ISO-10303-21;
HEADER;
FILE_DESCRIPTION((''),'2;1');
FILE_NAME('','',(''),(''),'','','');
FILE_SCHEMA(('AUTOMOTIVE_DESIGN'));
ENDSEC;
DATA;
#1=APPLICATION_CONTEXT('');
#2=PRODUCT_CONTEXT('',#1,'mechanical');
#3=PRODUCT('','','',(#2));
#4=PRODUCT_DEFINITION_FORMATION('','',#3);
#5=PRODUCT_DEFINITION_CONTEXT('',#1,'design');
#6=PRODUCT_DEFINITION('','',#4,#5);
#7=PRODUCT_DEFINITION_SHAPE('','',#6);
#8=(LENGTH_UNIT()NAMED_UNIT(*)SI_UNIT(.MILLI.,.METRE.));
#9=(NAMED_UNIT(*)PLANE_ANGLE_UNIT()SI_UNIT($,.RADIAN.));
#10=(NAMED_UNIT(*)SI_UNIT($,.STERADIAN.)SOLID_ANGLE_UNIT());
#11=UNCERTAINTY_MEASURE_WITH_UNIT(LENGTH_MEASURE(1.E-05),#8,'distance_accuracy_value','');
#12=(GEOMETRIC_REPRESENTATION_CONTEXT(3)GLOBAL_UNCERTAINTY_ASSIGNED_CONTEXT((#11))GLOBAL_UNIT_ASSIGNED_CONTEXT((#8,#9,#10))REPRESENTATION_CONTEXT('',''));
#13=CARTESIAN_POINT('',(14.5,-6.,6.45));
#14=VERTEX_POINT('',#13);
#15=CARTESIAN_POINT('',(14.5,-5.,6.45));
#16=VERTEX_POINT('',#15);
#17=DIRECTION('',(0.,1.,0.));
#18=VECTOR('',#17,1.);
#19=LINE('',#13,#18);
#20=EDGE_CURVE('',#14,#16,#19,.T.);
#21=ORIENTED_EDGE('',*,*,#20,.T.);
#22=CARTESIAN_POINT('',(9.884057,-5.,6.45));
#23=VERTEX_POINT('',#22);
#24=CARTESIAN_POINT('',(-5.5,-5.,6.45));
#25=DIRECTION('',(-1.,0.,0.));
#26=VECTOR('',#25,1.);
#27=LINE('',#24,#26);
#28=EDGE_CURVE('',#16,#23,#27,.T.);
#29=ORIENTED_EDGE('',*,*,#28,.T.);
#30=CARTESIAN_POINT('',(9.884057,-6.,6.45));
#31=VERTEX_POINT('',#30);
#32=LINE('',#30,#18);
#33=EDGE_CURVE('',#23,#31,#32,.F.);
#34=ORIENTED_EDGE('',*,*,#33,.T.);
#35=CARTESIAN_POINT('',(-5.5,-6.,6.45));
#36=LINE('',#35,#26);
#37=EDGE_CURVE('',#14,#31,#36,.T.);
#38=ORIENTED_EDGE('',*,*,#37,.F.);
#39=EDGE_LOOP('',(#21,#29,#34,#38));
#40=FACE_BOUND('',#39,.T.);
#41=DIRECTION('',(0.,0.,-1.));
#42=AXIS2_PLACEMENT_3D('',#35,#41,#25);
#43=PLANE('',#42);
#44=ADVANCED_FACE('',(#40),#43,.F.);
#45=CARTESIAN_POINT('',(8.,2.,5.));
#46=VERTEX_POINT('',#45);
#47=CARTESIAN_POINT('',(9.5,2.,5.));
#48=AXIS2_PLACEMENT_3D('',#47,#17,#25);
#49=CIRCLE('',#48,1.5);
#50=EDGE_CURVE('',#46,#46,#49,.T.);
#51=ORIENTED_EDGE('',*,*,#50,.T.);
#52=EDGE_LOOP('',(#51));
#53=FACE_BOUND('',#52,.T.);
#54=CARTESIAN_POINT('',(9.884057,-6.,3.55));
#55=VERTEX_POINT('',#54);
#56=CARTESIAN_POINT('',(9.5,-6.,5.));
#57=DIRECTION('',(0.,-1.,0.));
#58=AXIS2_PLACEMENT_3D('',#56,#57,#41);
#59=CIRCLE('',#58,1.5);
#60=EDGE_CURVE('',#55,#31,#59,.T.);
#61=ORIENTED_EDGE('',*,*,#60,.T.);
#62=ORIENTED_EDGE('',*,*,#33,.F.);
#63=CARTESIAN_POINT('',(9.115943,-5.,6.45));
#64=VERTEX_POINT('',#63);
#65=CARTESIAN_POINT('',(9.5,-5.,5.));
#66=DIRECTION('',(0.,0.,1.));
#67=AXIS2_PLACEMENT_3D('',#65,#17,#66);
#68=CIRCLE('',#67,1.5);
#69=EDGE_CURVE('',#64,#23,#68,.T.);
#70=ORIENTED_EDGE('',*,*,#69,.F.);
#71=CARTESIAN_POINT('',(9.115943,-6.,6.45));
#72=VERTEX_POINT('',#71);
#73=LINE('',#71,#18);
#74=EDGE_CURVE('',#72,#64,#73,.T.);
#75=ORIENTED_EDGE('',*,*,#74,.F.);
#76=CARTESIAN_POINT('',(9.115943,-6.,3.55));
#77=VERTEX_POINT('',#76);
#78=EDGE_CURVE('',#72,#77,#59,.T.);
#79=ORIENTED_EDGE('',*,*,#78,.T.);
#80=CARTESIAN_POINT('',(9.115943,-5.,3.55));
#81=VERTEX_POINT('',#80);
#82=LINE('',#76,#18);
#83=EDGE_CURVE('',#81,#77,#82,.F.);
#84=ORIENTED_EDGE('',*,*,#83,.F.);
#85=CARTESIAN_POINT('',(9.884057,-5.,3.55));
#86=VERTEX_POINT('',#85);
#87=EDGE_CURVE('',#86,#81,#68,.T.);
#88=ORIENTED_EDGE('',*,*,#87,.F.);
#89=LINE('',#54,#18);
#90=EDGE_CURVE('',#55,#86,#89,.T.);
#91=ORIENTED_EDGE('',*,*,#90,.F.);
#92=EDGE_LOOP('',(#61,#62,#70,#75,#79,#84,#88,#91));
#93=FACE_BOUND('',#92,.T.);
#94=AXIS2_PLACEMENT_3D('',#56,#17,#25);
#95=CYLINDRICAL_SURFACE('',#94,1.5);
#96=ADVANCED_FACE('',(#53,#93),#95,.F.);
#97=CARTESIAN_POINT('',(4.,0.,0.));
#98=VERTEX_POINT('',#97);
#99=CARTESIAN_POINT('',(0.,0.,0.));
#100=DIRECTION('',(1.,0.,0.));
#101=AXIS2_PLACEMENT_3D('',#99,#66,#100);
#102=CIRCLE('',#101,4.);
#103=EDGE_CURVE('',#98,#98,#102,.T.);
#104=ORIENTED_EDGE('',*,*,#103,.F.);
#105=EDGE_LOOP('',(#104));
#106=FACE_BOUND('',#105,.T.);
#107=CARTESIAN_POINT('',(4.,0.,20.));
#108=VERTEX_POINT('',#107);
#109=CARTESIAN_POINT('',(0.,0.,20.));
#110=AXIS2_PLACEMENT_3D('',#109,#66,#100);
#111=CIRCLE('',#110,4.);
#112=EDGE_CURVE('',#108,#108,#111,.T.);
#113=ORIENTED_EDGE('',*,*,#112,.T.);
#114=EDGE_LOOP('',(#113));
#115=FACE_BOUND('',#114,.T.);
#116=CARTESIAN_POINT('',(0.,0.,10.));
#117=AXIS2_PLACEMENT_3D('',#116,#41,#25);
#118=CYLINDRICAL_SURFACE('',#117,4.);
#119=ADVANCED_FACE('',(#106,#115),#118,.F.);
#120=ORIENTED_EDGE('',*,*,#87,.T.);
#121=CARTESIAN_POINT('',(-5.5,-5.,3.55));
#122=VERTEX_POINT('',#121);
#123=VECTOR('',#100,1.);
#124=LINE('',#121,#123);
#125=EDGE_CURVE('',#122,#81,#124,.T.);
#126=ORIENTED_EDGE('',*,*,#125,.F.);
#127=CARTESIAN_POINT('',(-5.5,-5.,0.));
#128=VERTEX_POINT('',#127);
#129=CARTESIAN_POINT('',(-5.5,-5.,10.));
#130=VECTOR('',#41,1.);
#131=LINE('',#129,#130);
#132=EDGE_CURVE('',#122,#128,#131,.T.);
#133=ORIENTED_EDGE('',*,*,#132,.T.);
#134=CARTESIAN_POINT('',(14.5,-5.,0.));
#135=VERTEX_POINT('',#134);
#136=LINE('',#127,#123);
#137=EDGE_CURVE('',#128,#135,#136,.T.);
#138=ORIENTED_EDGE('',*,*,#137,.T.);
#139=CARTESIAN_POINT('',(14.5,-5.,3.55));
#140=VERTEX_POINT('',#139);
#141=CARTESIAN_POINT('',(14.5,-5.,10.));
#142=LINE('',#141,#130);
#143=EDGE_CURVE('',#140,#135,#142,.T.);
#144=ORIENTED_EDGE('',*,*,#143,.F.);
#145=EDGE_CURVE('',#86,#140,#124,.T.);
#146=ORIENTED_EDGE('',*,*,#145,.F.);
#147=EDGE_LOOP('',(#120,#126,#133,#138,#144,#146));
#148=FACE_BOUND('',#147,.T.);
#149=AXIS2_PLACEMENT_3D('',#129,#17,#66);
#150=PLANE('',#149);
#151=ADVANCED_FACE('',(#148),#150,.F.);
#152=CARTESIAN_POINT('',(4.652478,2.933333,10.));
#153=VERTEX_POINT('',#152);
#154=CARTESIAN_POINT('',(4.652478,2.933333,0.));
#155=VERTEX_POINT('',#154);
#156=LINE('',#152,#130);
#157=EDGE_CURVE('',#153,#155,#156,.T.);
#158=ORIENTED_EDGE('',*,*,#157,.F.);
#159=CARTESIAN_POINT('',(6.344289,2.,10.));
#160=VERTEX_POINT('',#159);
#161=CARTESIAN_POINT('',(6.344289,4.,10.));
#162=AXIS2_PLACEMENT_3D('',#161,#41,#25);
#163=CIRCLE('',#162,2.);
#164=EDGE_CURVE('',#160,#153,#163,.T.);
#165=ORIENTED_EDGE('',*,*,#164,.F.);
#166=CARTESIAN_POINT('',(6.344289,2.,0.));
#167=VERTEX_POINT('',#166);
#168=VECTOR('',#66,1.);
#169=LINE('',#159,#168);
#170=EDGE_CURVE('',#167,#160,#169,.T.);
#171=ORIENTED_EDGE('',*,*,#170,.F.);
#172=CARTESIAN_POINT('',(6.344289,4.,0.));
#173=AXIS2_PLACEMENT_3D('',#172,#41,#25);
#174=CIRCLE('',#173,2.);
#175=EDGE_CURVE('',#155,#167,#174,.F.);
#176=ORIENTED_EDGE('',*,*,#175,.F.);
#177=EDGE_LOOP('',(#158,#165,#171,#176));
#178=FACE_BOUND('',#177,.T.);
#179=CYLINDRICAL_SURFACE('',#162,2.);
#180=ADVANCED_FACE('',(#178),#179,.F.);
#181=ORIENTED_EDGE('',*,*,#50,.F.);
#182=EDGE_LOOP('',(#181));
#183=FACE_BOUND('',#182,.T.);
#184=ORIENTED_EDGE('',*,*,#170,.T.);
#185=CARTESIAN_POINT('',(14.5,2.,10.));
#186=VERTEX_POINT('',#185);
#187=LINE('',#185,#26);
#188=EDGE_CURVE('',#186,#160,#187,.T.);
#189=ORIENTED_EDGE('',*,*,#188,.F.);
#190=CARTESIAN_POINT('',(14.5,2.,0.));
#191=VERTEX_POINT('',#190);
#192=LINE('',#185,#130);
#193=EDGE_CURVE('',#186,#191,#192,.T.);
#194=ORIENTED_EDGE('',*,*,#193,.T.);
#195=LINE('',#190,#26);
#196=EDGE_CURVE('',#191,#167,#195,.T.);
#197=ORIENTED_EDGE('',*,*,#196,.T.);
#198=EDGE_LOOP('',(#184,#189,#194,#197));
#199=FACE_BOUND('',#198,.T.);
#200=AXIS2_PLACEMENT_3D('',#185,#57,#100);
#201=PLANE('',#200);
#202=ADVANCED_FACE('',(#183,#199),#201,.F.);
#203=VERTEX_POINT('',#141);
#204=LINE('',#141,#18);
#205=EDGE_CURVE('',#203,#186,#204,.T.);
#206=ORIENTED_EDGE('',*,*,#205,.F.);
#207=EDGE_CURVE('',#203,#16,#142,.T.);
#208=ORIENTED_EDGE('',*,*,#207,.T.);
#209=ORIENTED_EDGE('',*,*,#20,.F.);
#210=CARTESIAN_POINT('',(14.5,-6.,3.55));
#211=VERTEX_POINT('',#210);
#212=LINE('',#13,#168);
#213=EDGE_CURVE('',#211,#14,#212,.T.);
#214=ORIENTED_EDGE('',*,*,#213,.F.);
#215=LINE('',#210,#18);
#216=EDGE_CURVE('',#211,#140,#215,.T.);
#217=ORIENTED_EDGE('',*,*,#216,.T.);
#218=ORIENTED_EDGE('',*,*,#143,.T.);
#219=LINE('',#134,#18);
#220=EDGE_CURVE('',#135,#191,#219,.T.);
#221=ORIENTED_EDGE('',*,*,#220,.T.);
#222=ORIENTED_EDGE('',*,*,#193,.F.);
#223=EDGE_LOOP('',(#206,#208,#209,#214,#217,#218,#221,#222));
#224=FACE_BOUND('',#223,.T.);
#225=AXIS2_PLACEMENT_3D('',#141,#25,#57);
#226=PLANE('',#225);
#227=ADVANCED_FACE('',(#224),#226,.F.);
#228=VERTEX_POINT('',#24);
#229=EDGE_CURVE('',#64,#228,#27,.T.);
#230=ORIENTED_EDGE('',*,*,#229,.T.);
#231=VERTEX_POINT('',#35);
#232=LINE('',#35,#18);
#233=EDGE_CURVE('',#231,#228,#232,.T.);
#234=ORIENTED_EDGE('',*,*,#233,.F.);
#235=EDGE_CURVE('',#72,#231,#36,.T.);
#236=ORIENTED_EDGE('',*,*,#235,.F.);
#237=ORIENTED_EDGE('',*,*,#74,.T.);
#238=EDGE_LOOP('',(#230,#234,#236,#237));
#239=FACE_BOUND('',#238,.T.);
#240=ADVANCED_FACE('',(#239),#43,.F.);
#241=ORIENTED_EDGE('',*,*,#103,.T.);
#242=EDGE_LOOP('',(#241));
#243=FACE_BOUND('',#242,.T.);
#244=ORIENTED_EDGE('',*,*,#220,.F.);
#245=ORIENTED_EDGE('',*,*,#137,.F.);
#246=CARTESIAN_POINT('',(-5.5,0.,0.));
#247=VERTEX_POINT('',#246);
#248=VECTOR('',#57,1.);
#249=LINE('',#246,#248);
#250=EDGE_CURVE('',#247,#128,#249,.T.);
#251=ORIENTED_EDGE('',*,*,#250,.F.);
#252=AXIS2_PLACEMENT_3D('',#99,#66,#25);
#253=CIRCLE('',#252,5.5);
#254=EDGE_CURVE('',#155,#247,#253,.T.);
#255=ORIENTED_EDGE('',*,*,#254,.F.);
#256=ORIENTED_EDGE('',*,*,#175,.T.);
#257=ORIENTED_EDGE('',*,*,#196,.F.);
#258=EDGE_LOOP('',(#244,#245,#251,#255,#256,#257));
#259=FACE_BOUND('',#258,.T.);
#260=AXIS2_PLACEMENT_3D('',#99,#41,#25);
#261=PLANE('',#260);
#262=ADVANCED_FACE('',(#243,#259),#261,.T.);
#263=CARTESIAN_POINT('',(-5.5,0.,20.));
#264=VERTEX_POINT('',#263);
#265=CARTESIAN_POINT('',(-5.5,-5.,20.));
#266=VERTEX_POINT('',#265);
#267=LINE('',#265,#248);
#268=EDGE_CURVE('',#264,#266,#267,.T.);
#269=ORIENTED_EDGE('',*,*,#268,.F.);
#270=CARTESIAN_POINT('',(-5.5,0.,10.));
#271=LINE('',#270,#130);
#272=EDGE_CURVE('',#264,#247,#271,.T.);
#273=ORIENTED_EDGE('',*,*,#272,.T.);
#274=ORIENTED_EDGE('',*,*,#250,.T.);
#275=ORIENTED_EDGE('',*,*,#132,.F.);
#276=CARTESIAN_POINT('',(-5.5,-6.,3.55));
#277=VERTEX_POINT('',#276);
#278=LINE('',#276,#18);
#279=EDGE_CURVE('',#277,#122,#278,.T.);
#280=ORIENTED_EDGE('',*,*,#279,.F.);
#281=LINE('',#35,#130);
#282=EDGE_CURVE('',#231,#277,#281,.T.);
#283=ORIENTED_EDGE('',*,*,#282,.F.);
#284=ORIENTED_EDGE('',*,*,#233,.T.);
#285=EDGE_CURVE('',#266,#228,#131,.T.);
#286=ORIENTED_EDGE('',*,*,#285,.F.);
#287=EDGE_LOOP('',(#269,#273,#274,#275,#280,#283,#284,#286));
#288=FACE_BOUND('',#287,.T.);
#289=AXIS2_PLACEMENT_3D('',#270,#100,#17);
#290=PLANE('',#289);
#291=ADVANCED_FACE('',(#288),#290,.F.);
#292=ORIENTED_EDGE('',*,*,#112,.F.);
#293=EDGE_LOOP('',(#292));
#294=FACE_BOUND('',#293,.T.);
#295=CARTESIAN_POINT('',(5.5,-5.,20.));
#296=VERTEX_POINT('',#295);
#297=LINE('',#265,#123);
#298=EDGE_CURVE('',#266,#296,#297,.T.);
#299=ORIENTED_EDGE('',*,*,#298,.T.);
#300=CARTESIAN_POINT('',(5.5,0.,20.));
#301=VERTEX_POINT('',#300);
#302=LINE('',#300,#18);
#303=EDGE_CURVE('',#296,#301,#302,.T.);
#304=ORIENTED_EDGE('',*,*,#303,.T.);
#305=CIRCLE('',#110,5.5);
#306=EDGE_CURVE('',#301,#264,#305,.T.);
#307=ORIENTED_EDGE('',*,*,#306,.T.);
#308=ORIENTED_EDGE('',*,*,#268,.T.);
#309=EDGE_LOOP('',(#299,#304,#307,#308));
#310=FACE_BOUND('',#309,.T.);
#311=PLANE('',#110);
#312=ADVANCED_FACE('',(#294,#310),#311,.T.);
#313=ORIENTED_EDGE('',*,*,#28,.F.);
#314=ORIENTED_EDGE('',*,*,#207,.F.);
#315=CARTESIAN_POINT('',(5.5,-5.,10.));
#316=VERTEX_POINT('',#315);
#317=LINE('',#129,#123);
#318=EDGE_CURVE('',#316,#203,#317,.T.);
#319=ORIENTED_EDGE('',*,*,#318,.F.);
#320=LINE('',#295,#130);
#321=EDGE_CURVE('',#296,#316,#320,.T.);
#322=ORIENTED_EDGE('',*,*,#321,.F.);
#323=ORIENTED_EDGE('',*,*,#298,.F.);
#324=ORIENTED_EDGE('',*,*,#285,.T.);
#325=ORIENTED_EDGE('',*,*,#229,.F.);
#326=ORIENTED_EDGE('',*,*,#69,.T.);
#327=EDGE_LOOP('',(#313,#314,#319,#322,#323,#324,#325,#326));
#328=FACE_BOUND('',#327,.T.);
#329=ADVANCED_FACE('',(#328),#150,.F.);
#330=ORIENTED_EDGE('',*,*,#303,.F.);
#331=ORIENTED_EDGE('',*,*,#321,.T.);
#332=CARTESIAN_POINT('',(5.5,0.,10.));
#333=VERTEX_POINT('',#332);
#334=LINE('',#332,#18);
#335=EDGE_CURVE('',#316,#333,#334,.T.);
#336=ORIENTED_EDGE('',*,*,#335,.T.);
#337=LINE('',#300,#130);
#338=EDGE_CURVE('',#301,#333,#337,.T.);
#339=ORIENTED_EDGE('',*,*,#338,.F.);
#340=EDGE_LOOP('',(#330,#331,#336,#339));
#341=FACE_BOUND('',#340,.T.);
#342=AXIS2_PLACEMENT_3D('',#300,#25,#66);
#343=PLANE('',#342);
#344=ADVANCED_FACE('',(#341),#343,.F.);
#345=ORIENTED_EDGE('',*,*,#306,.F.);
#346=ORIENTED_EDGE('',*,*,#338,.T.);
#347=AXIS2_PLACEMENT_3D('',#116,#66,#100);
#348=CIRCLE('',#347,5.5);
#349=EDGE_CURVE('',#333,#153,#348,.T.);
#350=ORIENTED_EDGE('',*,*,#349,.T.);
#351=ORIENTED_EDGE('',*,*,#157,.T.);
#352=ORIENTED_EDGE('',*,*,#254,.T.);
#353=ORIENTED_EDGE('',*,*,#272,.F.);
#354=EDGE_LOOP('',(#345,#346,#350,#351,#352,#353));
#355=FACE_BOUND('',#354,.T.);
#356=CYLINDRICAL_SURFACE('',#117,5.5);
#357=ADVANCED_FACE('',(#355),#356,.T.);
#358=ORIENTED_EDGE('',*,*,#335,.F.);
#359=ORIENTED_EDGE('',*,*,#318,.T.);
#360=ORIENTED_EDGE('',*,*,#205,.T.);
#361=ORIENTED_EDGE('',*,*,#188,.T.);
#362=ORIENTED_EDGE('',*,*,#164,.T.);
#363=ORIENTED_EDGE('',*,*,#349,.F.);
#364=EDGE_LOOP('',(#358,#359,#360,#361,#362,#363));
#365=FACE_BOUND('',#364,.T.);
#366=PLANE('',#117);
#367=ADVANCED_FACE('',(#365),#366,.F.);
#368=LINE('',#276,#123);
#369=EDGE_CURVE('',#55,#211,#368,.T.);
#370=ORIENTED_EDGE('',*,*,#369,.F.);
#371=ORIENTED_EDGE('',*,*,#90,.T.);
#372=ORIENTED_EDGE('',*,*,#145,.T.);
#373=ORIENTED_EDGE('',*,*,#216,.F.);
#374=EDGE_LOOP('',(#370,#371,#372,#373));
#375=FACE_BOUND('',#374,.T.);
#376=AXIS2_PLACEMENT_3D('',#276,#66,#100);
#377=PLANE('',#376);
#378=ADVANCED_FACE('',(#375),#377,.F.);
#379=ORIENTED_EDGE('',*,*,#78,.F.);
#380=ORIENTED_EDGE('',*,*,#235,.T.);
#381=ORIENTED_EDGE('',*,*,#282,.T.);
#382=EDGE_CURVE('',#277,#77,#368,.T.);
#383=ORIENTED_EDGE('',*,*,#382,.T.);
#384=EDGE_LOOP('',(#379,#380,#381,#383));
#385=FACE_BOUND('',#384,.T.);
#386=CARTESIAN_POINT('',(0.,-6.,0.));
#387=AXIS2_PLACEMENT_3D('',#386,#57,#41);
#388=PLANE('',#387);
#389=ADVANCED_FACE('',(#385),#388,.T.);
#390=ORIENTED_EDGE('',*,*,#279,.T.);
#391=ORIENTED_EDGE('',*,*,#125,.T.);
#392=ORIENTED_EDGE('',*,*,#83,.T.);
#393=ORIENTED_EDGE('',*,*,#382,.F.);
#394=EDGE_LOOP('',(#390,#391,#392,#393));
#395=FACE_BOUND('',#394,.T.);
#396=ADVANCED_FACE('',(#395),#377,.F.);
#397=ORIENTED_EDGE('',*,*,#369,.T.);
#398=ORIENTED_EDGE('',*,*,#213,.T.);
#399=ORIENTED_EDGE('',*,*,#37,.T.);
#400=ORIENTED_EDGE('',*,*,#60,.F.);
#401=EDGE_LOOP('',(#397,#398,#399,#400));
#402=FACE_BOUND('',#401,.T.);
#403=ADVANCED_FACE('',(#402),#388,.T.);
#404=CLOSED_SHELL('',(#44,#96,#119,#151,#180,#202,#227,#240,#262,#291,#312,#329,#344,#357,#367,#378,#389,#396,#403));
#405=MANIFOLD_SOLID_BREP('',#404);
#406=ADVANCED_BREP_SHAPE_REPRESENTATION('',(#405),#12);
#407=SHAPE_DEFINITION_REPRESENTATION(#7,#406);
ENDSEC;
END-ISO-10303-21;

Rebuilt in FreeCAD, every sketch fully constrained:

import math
import FreeCAD as App
import Part
import Sketcher

V = App.Vector
Q = App.Units.Quantity


def edges_at(feature, points):
    """Names of the edges that pass closest to the given points."""
    edges = feature.Shape.Edges
    near = lambda p: min(range(len(edges)), key=lambda i: edges[i].distToShape(Part.Vertex(*p))[0])
    return sorted({f"Edge{near(p) + 1}" for p in points})


def add_polygon(sketch, points):
    """Adds a closed chain of lines whose ends are joined by coincident constraints."""
    first, n = sketch.GeometryCount, len(points)
    for a, b in zip(points, points[1:] + points[:1]):
        sketch.addGeometry(Part.LineSegment(App.Vector(*a, 0), App.Vector(*b, 0)), False)
    for i in range(n):
        sketch.addConstraint(Sketcher.Constraint("Coincident", first + i, 2, first + (i + 1) % n, 1))

doc = App.newDocument("Part")
params = doc.addObject("Spreadsheet::Sheet", "Params")
for row, (alias, value) in enumerate([
    ("sketch1_diameter", "8 mm"),
    ("sketch1_radius", "5.5 mm"),
    ("sketch1_width", "20 mm"),
    ("sketch1_height", "5 mm"),
    ("sketch1_height2", "7 mm"),
    ("pad1_length", "10 mm"),
    ("sketch2_width", "20 mm"),
    ("sketch2_height", "2.9 mm"),
    ("pad2_length", "1 mm"),
    ("sketch3_diameter", "3 mm"),
    ("fillet_radius", "2 mm"),
    ("sketch4_diameter", "8 mm"),
    ("sketch4_radius", "5.5 mm"),
    ("sketch4_height", "5 mm"),
    ("pad3_length", "10 mm"),
], start=1):
    params.set(f"A{row}", alias)
    params.set(f"B{row}", "=" + value)
    params.setAlias(f"B{row}", alias)

body = doc.addObject("PartDesign::Body", "Body")

sketch1 = doc.addObject("Sketcher::SketchObject", "Sketch")
body.addObject(sketch1)
sketch1.AttachmentSupport = (doc.XY_Plane, [""])
sketch1.MapMode = "FlatFace"
sketch1.addGeometry(Part.LineSegment(V(-5.5, 0, 0), V(-5.5, -5, 0)), False)
sketch1.addGeometry(Part.LineSegment(V(-5.5, -5, 0), V(14.5, -5, 0)), False)
sketch1.addGeometry(Part.LineSegment(V(14.5, -5, 0), V(14.5, 2, 0)), False)
sketch1.addGeometry(Part.LineSegment(V(14.5, 2, 0), V(5.123475, 2, 0)), False)
sketch1.addGeometry(Part.ArcOfCircle(Part.Circle(V(0, 0, 0), V(0, 0, 1), 5.5), math.radians(21.323686), math.radians(180)), False)
sketch1.addGeometry(Part.Circle(V(0, 0, 0), V(0, 0, 1), 4), False)
sketch1.addConstraint(Sketcher.Constraint("Coincident", 0, 2, 1, 1))
sketch1.addConstraint(Sketcher.Constraint("Coincident", 1, 2, 2, 1))
sketch1.addConstraint(Sketcher.Constraint("Coincident", 2, 2, 3, 1))
sketch1.addConstraint(Sketcher.Constraint("Coincident", 3, 2, 4, 1))
sketch1.addConstraint(Sketcher.Constraint("Tangent", 4, 2, 0, 1))
sketch1.addConstraint(Sketcher.Constraint("Vertical", 0))
sketch1.addConstraint(Sketcher.Constraint("Horizontal", 1))
sketch1.addConstraint(Sketcher.Constraint("Vertical", 2))
sketch1.addConstraint(Sketcher.Constraint("Horizontal", 3))
sketch1.addConstraint(Sketcher.Constraint("Coincident", 4, 3, -1, 1))
sketch1.addConstraint(Sketcher.Constraint("Coincident", 5, 3, -1, 1))
sketch1.addConstraint(Sketcher.Constraint("Diameter", 5, Q("8 mm")))
sketch1.addConstraint(Sketcher.Constraint("Radius", 4, Q("5.5 mm")))
sketch1.addConstraint(Sketcher.Constraint("DistanceX", 1, 1, 1, 2, Q("20 mm")))
sketch1.addConstraint(Sketcher.Constraint("DistanceY", 0, 2, 0, 1, Q("5 mm")))
sketch1.addConstraint(Sketcher.Constraint("DistanceY", 2, 1, 2, 2, Q("7 mm")))
sketch1.setExpression("Constraints[11]", "Params.sketch1_diameter")
sketch1.setExpression("Constraints[12]", "Params.sketch1_radius")
sketch1.setExpression("Constraints[13]", "Params.sketch1_width")
sketch1.setExpression("Constraints[14]", "Params.sketch1_height")
sketch1.setExpression("Constraints[15]", "Params.sketch1_height2")
pad1 = doc.addObject("PartDesign::Pad", "Pad")
body.addObject(pad1)
pad1.Profile = sketch1
pad1.setExpression("Length", "Params.pad1_length")

sketch2 = doc.addObject("Sketcher::SketchObject", "Sketch001")
body.addObject(sketch2)
sketch2.AttachmentSupport = (doc.XZ_Plane, [""])
sketch2.MapMode = "FlatFace"
sketch2.AttachmentOffset = App.Placement(V(0, 0, 5), App.Rotation())
add_polygon(sketch2, [(14.5, 3.55), (14.5, 6.45), (-5.5, 6.45), (-5.5, 3.55)])
sketch2.addConstraint(Sketcher.Constraint("Vertical", 0))
sketch2.addConstraint(Sketcher.Constraint("Horizontal", 1))
sketch2.addConstraint(Sketcher.Constraint("Vertical", 2))
sketch2.addConstraint(Sketcher.Constraint("Horizontal", 3))
sketch2.addConstraint(Sketcher.Constraint("DistanceX", 1, 2, 1, 1, Q("20 mm")))
sketch2.addConstraint(Sketcher.Constraint("DistanceY", 0, 1, 0, 2, Q("2.9 mm")))
sketch2.addConstraint(Sketcher.Constraint("DistanceX", -1, 1, 0, 2, Q("14.5 mm")))
sketch2.addConstraint(Sketcher.Constraint("DistanceY", -1, 1, 0, 2, Q("6.45 mm")))
sketch2.setExpression("Constraints[8]", "Params.sketch2_width")
sketch2.setExpression("Constraints[9]", "Params.sketch2_height")
pad2 = doc.addObject("PartDesign::Pad", "Pad001")
body.addObject(pad2)
pad2.Profile = sketch2
pad2.setExpression("Length", "Params.pad2_length")

sketch3 = doc.addObject("Sketcher::SketchObject", "Sketch002")
body.addObject(sketch3)
sketch3.AttachmentSupport = (doc.XZ_Plane, [""])
sketch3.MapMode = "FlatFace"
sketch3.AttachmentOffset = App.Placement(V(0, 0, -2), App.Rotation())
sketch3.addGeometry(Part.Circle(V(9.5, 5, 0), V(0, 0, 1), 1.5), False)
sketch3.addConstraint(Sketcher.Constraint("Diameter", 0, Q("3 mm")))
sketch3.addConstraint(Sketcher.Constraint("DistanceY", -1, 1, 0, 3, Q("5 mm")))
sketch3.addConstraint(Sketcher.Constraint("DistanceX", -1, 1, 0, 3, Q("9.5 mm")))
sketch3.setExpression("Constraints[0]", "Params.sketch3_diameter")
pocket1 = doc.addObject("PartDesign::Pocket", "Pocket")
body.addObject(pocket1)
pocket1.Profile = sketch3
pocket1.Type = "ThroughAll"
pocket1.Reversed = True
doc.recompute()

fillet = doc.addObject("PartDesign::Fillet", "Fillet")
body.addObject(fillet)
fillet.Base = (pocket1, edges_at(pocket1, [(5.123, 2, 5)]))
fillet.setExpression("Radius", "Params.fillet_radius")

sketch4 = doc.addObject("Sketcher::SketchObject", "Sketch003")
body.addObject(sketch4)
sketch4.AttachmentSupport = (doc.XY_Plane, [""])
sketch4.MapMode = "FlatFace"
sketch4.AttachmentOffset = App.Placement(V(0, 0, 10), App.Rotation())
sketch4.addGeometry(Part.LineSegment(V(-5.5, -5, 0), V(5.5, -5, 0)), False)
sketch4.addGeometry(Part.LineSegment(V(5.5, -5, 0), V(5.5, 0, 0)), False)
sketch4.addGeometry(Part.ArcOfCircle(Part.Circle(V(0, 0, 0), V(0, 0, 1), 5.5), math.radians(0), math.radians(180)), False)
sketch4.addGeometry(Part.LineSegment(V(-5.5, 0, 0), V(-5.5, -5, 0)), False)
sketch4.addGeometry(Part.Circle(V(0, 0, 0), V(0, 0, 1), 4), False)
sketch4.addConstraint(Sketcher.Constraint("Coincident", 0, 2, 1, 1))
sketch4.addConstraint(Sketcher.Constraint("Tangent", 1, 2, 2, 1))
sketch4.addConstraint(Sketcher.Constraint("Tangent", 2, 2, 3, 1))
sketch4.addConstraint(Sketcher.Constraint("Coincident", 3, 2, 0, 1))
sketch4.addConstraint(Sketcher.Constraint("Horizontal", 0))
sketch4.addConstraint(Sketcher.Constraint("Vertical", 1))
sketch4.addConstraint(Sketcher.Constraint("Vertical", 3))
sketch4.addConstraint(Sketcher.Constraint("Coincident", 2, 3, -1, 1))
sketch4.addConstraint(Sketcher.Constraint("Coincident", 4, 3, -1, 1))
sketch4.addConstraint(Sketcher.Constraint("Diameter", 4, Q("8 mm")))
sketch4.addConstraint(Sketcher.Constraint("Radius", 2, Q("5.5 mm")))
sketch4.addConstraint(Sketcher.Constraint("DistanceY", 1, 1, 1, 2, Q("5 mm")))
sketch4.setExpression("Constraints[9]", "Params.sketch4_diameter")
sketch4.setExpression("Constraints[10]", "Params.sketch4_radius")
sketch4.setExpression("Constraints[11]", "Params.sketch4_height")
pad3 = doc.addObject("PartDesign::Pad", "Pad002")
body.addObject(pad3)
pad3.Profile = sketch4
pad3.setExpression("Length", "Params.pad3_length")

doc.recompute()
